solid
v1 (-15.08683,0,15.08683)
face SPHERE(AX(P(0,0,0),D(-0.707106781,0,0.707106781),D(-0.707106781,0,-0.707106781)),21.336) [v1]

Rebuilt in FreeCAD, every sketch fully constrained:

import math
import FreeCAD as App
import Part
import Sketcher

V = App.Vector
Q = App.Units.Quantity

doc = App.newDocument("Part")
body = doc.addObject("PartDesign::Body", "Body")

# Sketch on XZ plane
sketch1 = body.newObject("Sketcher::SketchObject", "Sketch")
sketch1.AttachmentSupport = (doc.getObject("XZ_Plane"), [""])
sketch1.MapMode = "FlatFace"
sketch1.addGeometry([
    Part.ArcOfCircle(Part.Circle(V(0, 0, 0), V(0, 0, 1), 21), math.radians(-45), math.radians(135)),
    Part.LineSegment(V(15, -15, 0), V(-15, 15, 0)),
], False)
sketch1.addGeometry(Part.LineSegment(V(-15, 15, 0), V(15, -15, 0)), True)  # axis
sketch1.addConstraint([
    Sketcher.Constraint("Coincident", 0, 1, 1, 1),
    Sketcher.Constraint("Coincident", 1, 2, 0, 2),
    Sketcher.Constraint("Coincident", 0, 3, -1, 1),
    Sketcher.Constraint("Coincident", 2, 1, 1, 2),
    Sketcher.Constraint("Coincident", 2, 2, 0, 1),
    Sketcher.Constraint("Radius", 0, Q("0.84 in")),
    Sketcher.Constraint("Angle", 1, Q("135 deg")),
    Sketcher.Constraint("DistanceX", -1, 1, 0, 1, Q("15.08683 mm")),
])
revolution = body.newObject("PartDesign::Revolution", "Revolution")
revolution.Profile = sketch1
revolution.ReferenceAxis = (sketch1, ["Axis0"])
revolution.Angle = 360

doc.recompute()
